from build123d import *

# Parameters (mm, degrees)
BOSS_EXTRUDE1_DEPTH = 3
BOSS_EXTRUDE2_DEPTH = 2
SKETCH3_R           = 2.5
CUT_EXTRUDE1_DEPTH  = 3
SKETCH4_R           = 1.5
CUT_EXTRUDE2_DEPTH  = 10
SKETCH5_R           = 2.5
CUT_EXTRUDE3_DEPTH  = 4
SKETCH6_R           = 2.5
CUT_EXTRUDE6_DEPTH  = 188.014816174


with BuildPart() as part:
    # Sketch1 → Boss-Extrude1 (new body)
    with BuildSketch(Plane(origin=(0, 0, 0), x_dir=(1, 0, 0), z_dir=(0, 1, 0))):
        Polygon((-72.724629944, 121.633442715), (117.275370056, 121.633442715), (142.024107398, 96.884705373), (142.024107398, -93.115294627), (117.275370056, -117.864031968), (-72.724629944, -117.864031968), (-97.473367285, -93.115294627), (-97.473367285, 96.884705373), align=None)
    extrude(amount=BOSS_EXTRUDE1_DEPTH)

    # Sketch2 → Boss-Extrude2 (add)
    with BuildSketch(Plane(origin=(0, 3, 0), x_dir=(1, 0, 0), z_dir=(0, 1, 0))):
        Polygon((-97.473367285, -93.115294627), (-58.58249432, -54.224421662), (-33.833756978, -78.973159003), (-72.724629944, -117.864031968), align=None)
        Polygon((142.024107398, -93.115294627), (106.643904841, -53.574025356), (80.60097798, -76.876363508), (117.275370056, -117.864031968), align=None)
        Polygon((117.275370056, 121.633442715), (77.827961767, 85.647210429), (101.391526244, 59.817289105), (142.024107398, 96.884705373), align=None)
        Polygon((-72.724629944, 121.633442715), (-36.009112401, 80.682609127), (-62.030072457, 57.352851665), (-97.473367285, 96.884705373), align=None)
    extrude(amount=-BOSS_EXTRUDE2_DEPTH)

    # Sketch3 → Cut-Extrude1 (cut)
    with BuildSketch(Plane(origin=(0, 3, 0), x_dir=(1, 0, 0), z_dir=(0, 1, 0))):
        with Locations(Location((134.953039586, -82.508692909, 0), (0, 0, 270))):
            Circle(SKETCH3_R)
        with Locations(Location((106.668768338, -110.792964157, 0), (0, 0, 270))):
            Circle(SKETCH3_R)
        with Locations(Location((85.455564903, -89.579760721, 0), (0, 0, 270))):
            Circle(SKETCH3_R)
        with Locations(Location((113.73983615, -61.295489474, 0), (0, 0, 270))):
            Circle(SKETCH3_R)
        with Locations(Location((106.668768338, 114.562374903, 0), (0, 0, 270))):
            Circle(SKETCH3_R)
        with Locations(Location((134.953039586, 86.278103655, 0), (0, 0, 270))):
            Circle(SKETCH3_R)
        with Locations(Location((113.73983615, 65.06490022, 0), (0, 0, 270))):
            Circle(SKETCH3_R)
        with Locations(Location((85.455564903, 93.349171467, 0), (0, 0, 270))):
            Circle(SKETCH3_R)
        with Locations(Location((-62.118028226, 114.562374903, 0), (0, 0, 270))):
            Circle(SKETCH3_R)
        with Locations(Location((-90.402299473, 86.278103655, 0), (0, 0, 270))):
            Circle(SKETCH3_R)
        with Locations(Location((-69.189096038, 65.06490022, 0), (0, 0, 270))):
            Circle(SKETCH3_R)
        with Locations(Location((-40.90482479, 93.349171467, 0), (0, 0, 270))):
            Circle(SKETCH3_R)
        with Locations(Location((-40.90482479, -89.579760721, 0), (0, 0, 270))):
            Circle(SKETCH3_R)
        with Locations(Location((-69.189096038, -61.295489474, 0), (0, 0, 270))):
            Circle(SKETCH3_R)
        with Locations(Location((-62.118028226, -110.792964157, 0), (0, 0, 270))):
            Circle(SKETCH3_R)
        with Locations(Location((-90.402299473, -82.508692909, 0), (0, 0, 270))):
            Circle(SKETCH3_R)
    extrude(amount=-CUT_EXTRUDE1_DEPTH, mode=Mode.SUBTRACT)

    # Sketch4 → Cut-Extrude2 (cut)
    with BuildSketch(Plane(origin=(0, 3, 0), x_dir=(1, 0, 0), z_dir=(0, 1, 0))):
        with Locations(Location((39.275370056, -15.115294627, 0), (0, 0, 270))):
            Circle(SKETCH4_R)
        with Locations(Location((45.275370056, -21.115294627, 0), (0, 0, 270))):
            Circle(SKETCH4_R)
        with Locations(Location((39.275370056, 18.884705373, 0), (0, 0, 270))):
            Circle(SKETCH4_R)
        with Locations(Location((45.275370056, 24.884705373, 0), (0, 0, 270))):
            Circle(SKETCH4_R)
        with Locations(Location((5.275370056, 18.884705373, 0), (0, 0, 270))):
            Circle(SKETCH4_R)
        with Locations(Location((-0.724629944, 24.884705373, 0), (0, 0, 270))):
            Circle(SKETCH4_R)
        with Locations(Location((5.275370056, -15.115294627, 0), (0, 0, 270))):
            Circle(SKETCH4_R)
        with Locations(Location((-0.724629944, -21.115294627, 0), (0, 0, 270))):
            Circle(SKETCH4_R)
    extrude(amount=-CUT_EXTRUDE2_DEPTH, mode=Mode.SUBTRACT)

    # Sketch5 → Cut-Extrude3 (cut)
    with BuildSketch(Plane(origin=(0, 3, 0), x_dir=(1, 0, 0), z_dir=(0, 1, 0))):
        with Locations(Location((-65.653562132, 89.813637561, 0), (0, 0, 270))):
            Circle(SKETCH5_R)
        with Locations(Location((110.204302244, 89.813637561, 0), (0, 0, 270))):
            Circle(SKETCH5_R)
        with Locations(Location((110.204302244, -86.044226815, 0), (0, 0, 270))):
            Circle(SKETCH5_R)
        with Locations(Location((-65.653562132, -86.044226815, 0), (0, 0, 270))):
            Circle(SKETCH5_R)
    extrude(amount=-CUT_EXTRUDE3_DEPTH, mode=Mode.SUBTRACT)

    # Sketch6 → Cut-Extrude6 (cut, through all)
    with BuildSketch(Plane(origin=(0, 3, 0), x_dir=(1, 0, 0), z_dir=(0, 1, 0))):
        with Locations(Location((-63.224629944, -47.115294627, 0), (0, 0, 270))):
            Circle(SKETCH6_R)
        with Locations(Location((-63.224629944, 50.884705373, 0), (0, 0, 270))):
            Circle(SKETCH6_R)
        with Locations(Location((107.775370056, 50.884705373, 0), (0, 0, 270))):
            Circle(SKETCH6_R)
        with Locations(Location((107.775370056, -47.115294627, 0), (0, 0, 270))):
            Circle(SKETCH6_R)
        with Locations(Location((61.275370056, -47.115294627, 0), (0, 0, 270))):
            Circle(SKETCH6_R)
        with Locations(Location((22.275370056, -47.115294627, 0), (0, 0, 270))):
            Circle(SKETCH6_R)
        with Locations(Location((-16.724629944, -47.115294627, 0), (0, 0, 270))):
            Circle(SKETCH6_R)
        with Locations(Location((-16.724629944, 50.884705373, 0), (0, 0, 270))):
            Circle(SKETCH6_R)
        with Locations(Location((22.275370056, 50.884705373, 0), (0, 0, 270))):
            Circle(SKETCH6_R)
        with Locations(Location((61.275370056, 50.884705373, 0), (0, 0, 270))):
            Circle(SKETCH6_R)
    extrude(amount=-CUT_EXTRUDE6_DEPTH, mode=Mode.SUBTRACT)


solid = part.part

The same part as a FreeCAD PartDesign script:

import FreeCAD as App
import Part
import Sketcher

V = App.Vector

doc = App.newDocument("Part")
params = doc.addObject("Spreadsheet::Sheet", "Params")
for row, (alias, value) in enumerate([
    ("sketch1_width", "190 mm"),
    ("sketch1_length", "35 mm"),
    ("pad1_length", "3 mm"),
    ("sketch2_length", "55 mm"),
    ("sketch2_length2", "35 mm"),
    ("pad2_length", "2 mm"),
    ("sketch3_diameter", "5 mm"),
    ("pocket1_length", "3 mm"),
    ("sketch4_diameter", "3 mm"),
    ("pocket2_length", "10 mm"),
    ("sketch5_diameter", "5 mm"),
    ("pocket3_length", "4 mm"),
    ("sketch6_diameter", "5 mm"),
], start=1):
    params.set(f"A{row}", alias)
    params.set(f"B{row}", "=" + value)
    params.setAlias(f"B{row}", alias)

body = doc.addObject("PartDesign::Body", "Body")

sketch1 = body.newObject("Sketcher::SketchObject", "Sketch")
sketch1.AttachmentSupport = (doc.getObject("XZ_Plane"), [""])
sketch1.MapMode = "FlatFace"
sketch1.addGeometry([
    Part.LineSegment(V(117, -122, 0), V(-73, -122, 0)),
    Part.LineSegment(V(-73, -122, 0), V(-97, -97, 0)),
    Part.LineSegment(V(-97, -97, 0), V(-97, 93, 0)),
    Part.LineSegment(V(-97, 93, 0), V(-73, 118, 0)),
    Part.LineSegment(V(-73, 118, 0), V(117, 118, 0)),
    Part.LineSegment(V(117, 118, 0), V(142, 93, 0)),
    Part.LineSegment(V(142, 93, 0), V(142, -97, 0)),
    Part.LineSegment(V(142, -97, 0), V(117, -122, 0)),
], False)
sketch1.addConstraint([
    Sketcher.Constraint("Coincident", 0, 2, 1, 1),
    Sketcher.Constraint("Coincident", 1, 2, 2, 1),
    Sketcher.Constraint("Coincident", 2, 2, 3, 1),
    Sketcher.Constraint("Coincident", 3, 2, 4, 1),
    Sketcher.Constraint("Coincident", 4, 2, 5, 1),
    Sketcher.Constraint("Coincident", 5, 2, 6, 1),
    Sketcher.Constraint("Coincident", 6, 2, 7, 1),
    Sketcher.Constraint("Coincident", 7, 2, 0, 1),
    Sketcher.Constraint("Horizontal", 0),
    Sketcher.Constraint("Vertical", 2),
    Sketcher.Constraint("Horizontal", 4),
    Sketcher.Constraint("Vertical", 6),
    Sketcher.Constraint("Perpendicular", 1, 3),
    Sketcher.Constraint("Perpendicular", 3, 5),
    Sketcher.Constraint("Perpendicular", 5, 7),
    Sketcher.Constraint("Horizontal", 2, 2, 5, 2),
    Sketcher.Constraint("Horizontal", 1, 2, 6, 2),
    Sketcher.Constraint("Vertical", 0, 2, 3, 2),
    Sketcher.Constraint("Vertical", 4, 2, 7, 2),
    Sketcher.Constraint("Equal", 4, 2),
    Sketcher.Constraint("DistanceX", 0, 2, 0, 1, 190.0),
    Sketcher.Constraint("Distance", 1, 35.0),
    Sketcher.Constraint("DistanceX", 0, 2, -1, 1, 72.72463),
    Sketcher.Constraint("DistanceY", -1, 1, 3, 2, 117.864032),
])
sketch1.setExpression("Constraints[20]", "Params.sketch1_width")
sketch1.setExpression("Constraints[21]", "Params.sketch1_length")
pad1 = body.newObject("PartDesign::Pad", "Pad")
pad1.Profile = sketch1
pad1.setExpression("Length", "Params.pad1_length")
pad1.Reversed = True

sketch2 = body.newObject("Sketcher::SketchObject", "Sketch001")
sketch2.AttachmentSupport = (doc.getObject("XZ_Plane"), [""])
sketch2.MapMode = "FlatFace"
sketch2.AttachmentOffset = App.Placement(V(0, 0, -3), App.Rotation())
sketch2.addGeometry([
    Part.LineSegment(V(-59, 54, 0), V(-97, 93, 0)),
    Part.LineSegment(V(-97, 93, 0), V(-73, 118, 0)),
    Part.LineSegment(V(-73, 118, 0), V(-34, 79, 0)),
    Part.LineSegment(V(-34, 79, 0), V(-59, 54, 0)),
    Part.LineSegment(V(142, 93, 0), V(107, 54, 0)),
    Part.LineSegment(V(107, 54, 0), V(81, 77, 0)),
    Part.LineSegment(V(81, 77, 0), V(117, 118, 0)),
    Part.LineSegment(V(117, 118, 0), V(142, 93, 0)),
    Part.LineSegment(V(117, -122, 0), V(78, -86, 0)),
    Part.LineSegment(V(78, -86, 0), V(101, -60, 0)),
    Part.LineSegment(V(101, -60, 0), V(142, -97, 0)),
    Part.LineSegment(V(142, -97, 0), V(117, -122, 0)),
    Part.LineSegment(V(-36, -81, 0), V(-73, -122, 0)),
    Part.LineSegment(V(-73, -122, 0), V(-97, -97, 0)),
    Part.LineSegment(V(-97, -97, 0), V(-62, -57, 0)),
    Part.LineSegment(V(-62, -57, 0), V(-36, -81, 0)),
], False)
sketch2.addConstraint([
    Sketcher.Constraint("Coincident", 0, 2, 1, 1),
    Sketcher.Constraint("Coincident", 1, 2, 2, 1),
    Sketcher.Constraint("Coincident", 2, 2, 3, 1),
    Sketcher.Constraint("Coincident", 3, 2, 0, 1),
    Sketcher.Constraint("Coincident", 4, 2, 5, 1),
    Sketcher.Constraint("Coincident", 5, 2, 6, 1),
    Sketcher.Constraint("Coincident", 6, 2, 7, 1),
    Sketcher.Constraint("Coincident", 7, 2, 4, 1),
    Sketcher.Constraint("Coincident", 8, 2, 9, 1),
    Sketcher.Constraint("Coincident", 9, 2, 10, 1),
    Sketcher.Constraint("Coincident", 10, 2, 11, 1),
    Sketcher.Constraint("Coincident", 11, 2, 8, 1),
    Sketcher.Constraint("Coincident", 12, 2, 13, 1),
    Sketcher.Constraint("Coincident", 13, 2, 14, 1),
    Sketcher.Constraint("Coincident", 14, 2, 15, 1),
    Sketcher.Constraint("Coincident", 15, 2, 12, 1),
    Sketcher.Constraint("Perpendicular", 0, 1),
    Sketcher.Constraint("Perpendicular", 1, 2),
    Sketcher.Constraint("Perpendicular", 2, 3),
    Sketcher.Constraint("Perpendicular", 4, 5),
    Sketcher.Constraint("Perpendicular", 5, 6),
    Sketcher.Constraint("Perpendicular", 3, 7),
    Sketcher.Constraint("Perpendicular", 8, 9),
    Sketcher.Constraint("Perpendicular", 9, 10),
    Sketcher.Constraint("Perpendicular", 7, 11),
    Sketcher.Constraint("Perpendicular", 11, 13),
    Sketcher.Constraint("Parallel", 12, 14),
    Sketcher.Constraint("Perpendicular", 14, 15),
    Sketcher.Constraint("Horizontal", 1, 2, 6, 2),
    Sketcher.Constraint("Horizontal", 0, 2, 7, 2),
    Sketcher.Constraint("Horizontal", 11, 2, 12, 2),
    Sketcher.Constraint("Horizontal", 10, 2, 13, 2),
    Sketcher.Constraint("Vertical", 7, 2, 10, 2),
    Sketcher.Constraint("Vertical", 6, 2, 11, 2),
    Sketcher.Constraint("Vertical", 1, 2, 12, 2),
    Sketcher.Constraint("Vertical", 0, 2, 13, 2),
    Sketcher.Constraint("Equal", 2, 6),
    Sketcher.Constraint("Equal", 6, 10),
    Sketcher.Constraint("Equal", 10, 12),
    Sketcher.Constraint("Distance", 0, 55.0),
    Sketcher.Constraint("Distance", 1, 35.0),
    Sketcher.Constraint("DistanceX", 1, 2, 6, 2, 190.0),
    Sketcher.Constraint("DistanceY", 10, 2, 7, 2, 190.0),
    Sketcher.Constraint("DistanceX", 3, 2, 4, 2, 165.226399),
    Sketcher.Constraint("DistanceY", 8, 2, 15, 2, 4.964601),
    Sketcher.Constraint("DistanceX", 1, 2, -1, 1, 72.72463),
    Sketcher.Constraint("DistanceY", -1, 1, 1, 2, 117.864032),
    Sketcher.Constraint("DistanceX", -1, 1, 8, 2, 77.827962),
])
sketch2.setExpression("Constraints[39]", "Params.sketch2_length")
sketch2.setExpression("Constraints[40]", "Params.sketch2_length2")
pad2 = body.newObject("PartDesign::Pad", "Pad001")
pad2.Profile = sketch2
pad2.setExpression("Length", "Params.pad2_length")

sketch3 = body.newObject("Sketcher::SketchObject", "Sketch002")
sketch3.AttachmentSupport = (doc.getObject("XZ_Plane"), [""])
sketch3.MapMode = "FlatFace"
sketch3.AttachmentOffset = App.Placement(V(0, 0, -3), App.Rotation())
sketch3.addGeometry([
    Part.Circle(V(135, 82.5, 0), V(0, 0, 1), 2.5),
    Part.Circle(V(106.7, 110.8, 0), V(0, 0, 1), 2.5),
    Part.Circle(V(85.5, 89.6, 0), V(0, 0, 1), 2.5),
    Part.Circle(V(113.7, 61.3, 0), V(0, 0, 1), 2.5),
    Part.Circle(V(106.7, -114.6, 0), V(0, 0, 1), 2.5),
    Part.Circle(V(135, -86.3, 0), V(0, 0, 1), 2.5),
    Part.Circle(V(113.7, -65.1, 0), V(0, 0, 1), 2.5),
    Part.Circle(V(85.5, -93.3, 0), V(0, 0, 1), 2.5),
    Part.Circle(V(-62.1, -114.6, 0), V(0, 0, 1), 2.5),
    Part.Circle(V(-90.4, -86.3, 0), V(0, 0, 1), 2.5),
    Part.Circle(V(-69.2, -65.1, 0), V(0, 0, 1), 2.5),
    Part.Circle(V(-40.9, -93.3, 0), V(0, 0, 1), 2.5),
    Part.Circle(V(-40.9, 89.6, 0), V(0, 0, 1), 2.5),
    Part.Circle(V(-69.2, 61.3, 0), V(0, 0, 1), 2.5),
    Part.Circle(V(-62.1, 110.8, 0), V(0, 0, 1), 2.5),
    Part.Circle(V(-90.4, 82.5, 0), V(0, 0, 1), 2.5),
], False)
sketch3.addConstraint([
    Sketcher.Constraint("Equal", 0, 1),
    Sketcher.Constraint("Equal", 1, 2),
    Sketcher.Constraint("Equal", 2, 3),
    Sketcher.Constraint("Equal", 3, 4),
    Sketcher.Constraint("Equal", 4, 5),
    Sketcher.Constraint("Equal", 5, 6),
    Sketcher.Constraint("Equal", 6, 7),
    Sketcher.Constraint("Equal", 7, 8),
    Sketcher.Constraint("Equal", 8, 9),
    Sketcher.Constraint("Equal", 9, 10),
    Sketcher.Constraint("Equal", 10, 11),
    Sketcher.Constraint("Equal", 11, 12),
    Sketcher.Constraint("Equal", 12, 13),
    Sketcher.Constraint("Equal", 13, 14),
    Sketcher.Constraint("Equal", 14, 15),
    Sketcher.Constraint("Horizontal", 4, 3, 8, 3),
    Sketcher.Constraint("Horizontal", 5, 3, 9, 3),
    Sketcher.Constraint("Horizontal", 6, 3, 10, 3),
    Sketcher.Constraint("Horizontal", 7, 3, 11, 3),
    Sketcher.Constraint("Horizontal", 2, 3, 12, 3),
    Sketcher.Constraint("Horizontal", 3, 3, 13, 3),
    Sketcher.Constraint("Horizontal", 1, 3, 14, 3),
    Sketcher.Constraint("Horizontal", 0, 3, 15, 3),
    Sketcher.Constraint("Vertical", 1, 3, 4, 3),
    Sketcher.Constraint("Vertical", 0, 3, 5, 3),
    Sketcher.Constraint("Vertical", 3, 3, 6, 3),
    Sketcher.Constraint("Vertical", 2, 3, 7, 3),
    Sketcher.Constraint("Vertical", 11, 3, 12, 3),
    Sketcher.Constraint("Vertical", 10, 3, 13, 3),
    Sketcher.Constraint("Vertical", 8, 3, 14, 3),
    Sketcher.Constraint("Vertical", 9, 3, 15, 3),
    Sketcher.Constraint("Diameter", 0, 5.0),
    Sketcher.Constraint("DistanceY", 6, 3, -1, 1, 65.0649),
    Sketcher.Constraint("DistanceX", 9, 3, -1, 1, 90.402299),
    Sketcher.Constraint("DistanceX", -1, 1, 0, 3, 134.95304),
    Sketcher.Constraint("DistanceX", -1, 1, 1, 3, 106.668768),
    Sketcher.Constraint("DistanceY", -1, 1, 2, 3, 89.579761),
    Sketcher.Constraint("DistanceY", -1, 1, 3, 3, 61.295489),
    Sketcher.Constraint("DistanceY", 7, 3, -1, 1, 93.349171),
    Sketcher.Constraint("DistanceX", 8, 3, -1, 1, 62.118028),
    Sketcher.Constraint("DistanceY", 0, 3, 1, 3, 28.284271),
    Sketcher.Constraint("DistanceX", 2, 3, 3, 3, 28.284271),
    Sketcher.Constraint("DistanceY", 4, 3, 1, 3, 225.355339),
    Sketcher.Constraint("DistanceY", 4, 3, 5, 3, 28.284271),
    Sketcher.Constraint("DistanceX", 10, 3, 7, 3, 154.644661),
    Sketcher.Constraint("DistanceX", 10, 3, 11, 3, 28.284271),
    Sketcher.Constraint("DistanceY", -1, 1, 0, 3, 82.508693),
    Sketcher.Constraint("DistanceX", -1, 1, 2, 3, 85.455565),
])
sketch3.setExpression("Constraints[31]", "Params.sketch3_diameter")
pocket1 = body.newObject("PartDesign::Pocket", "Pocket")
pocket1.Profile = sketch3
pocket1.setExpression("Length", "Params.pocket1_length")
pocket1.Reversed = True

sketch4 = body.newObject("Sketcher::SketchObject", "Sketch003")
sketch4.AttachmentSupport = (doc.getObject("XZ_Plane"), [""])
sketch4.MapMode = "FlatFace"
sketch4.AttachmentOffset = App.Placement(V(0, 0, -3), App.Rotation())
sketch4.addGeometry([
    Part.Circle(V(39.3, 15.1, 0), V(0, 0, 1), 1.5),
    Part.Circle(V(45.3, 21.1, 0), V(0, 0, 1), 1.5),
    Part.Circle(V(39.3, -18.9, 0), V(0, 0, 1), 1.5),
    Part.Circle(V(45.3, -24.9, 0), V(0, 0, 1), 1.5),
    Part.Circle(V(5.3, -18.9, 0), V(0, 0, 1), 1.5),
    Part.Circle(V(-0.7, -24.9, 0), V(0, 0, 1), 1.5),
    Part.Circle(V(5.3, 15.1, 0), V(0, 0, 1), 1.5),
    Part.Circle(V(-0.7, 21.1, 0), V(0, 0, 1), 1.5),
], False)
sketch4.addConstraint([
    Sketcher.Constraint("Equal", 0, 1),
    Sketcher.Constraint("Equal", 1, 2),
    Sketcher.Constraint("Equal", 2, 3),
    Sketcher.Constraint("Equal", 3, 4),
    Sketcher.Constraint("Equal", 4, 5),
    Sketcher.Constraint("Equal", 5, 6),
    Sketcher.Constraint("Equal", 6, 7),
    Sketcher.Constraint("Horizontal", 2, 3, 4, 3),
    Sketcher.Constraint("Horizontal", 3, 3, 5, 3),
    Sketcher.Constraint("Horizontal", 0, 3, 6, 3),
    Sketcher.Constraint("Horizontal", 1, 3, 7, 3),
    Sketcher.Constraint("Vertical", 0, 3, 2, 3),
    Sketcher.Constraint("Vertical", 1, 3, 3, 3),
    Sketcher.Constraint("Vertical", 4, 3, 6, 3),
    Sketcher.Constraint("Vertical", 5, 3, 7, 3),
    Sketcher.Constraint("Diameter", 0, 3.0),
    Sketcher.Constraint("DistanceX", 0, 3, 1, 3, 6.0),
    Sketcher.Constraint("DistanceY", 0, 3, 1, 3, 6.0),
    Sketcher.Constraint("DistanceY", 2, 3, 0, 3, 34.0),
    Sketcher.Constraint("DistanceY", 3, 3, 2, 3, 6.0),
    Sketcher.Constraint("DistanceX", 4, 3, 2, 3, 34.0),
    Sketcher.Constraint("DistanceX", 5, 3, 4, 3, 6.0),
    Sketcher.Constraint("DistanceX", -1, 1, 0, 3, 39.27537),
    Sketcher.Constraint("DistanceY", -1, 1, 0, 3, 15.115295),
])
sketch4.setExpression("Constraints[15]", "Params.sketch4_diameter")
pocket2 = body.newObject("PartDesign::Pocket", "Pocket001")
pocket2.Profile = sketch4
pocket2.setExpression("Length", "Params.pocket2_length")
pocket2.Reversed = True

sketch5 = body.newObject("Sketcher::SketchObject", "Sketch004")
sketch5.AttachmentSupport = (doc.getObject("XZ_Plane"), [""])
sketch5.MapMode = "FlatFace"
sketch5.AttachmentOffset = App.Placement(V(0, 0, -3), App.Rotation())
sketch5.addGeometry([
    Part.Circle(V(-65.7, -89.8, 0), V(0, 0, 1), 2.5),
    Part.Circle(V(110.2, -89.8, 0), V(0, 0, 1), 2.5),
    Part.Circle(V(110.2, 86, 0), V(0, 0, 1), 2.5),
    Part.Circle(V(-65.7, 86, 0), V(0, 0, 1), 2.5),
], False)
sketch5.addConstraint([
    Sketcher.Constraint("Equal", 0, 1),
    Sketcher.Constraint("Equal", 1, 2),
    Sketcher.Constraint("Equal", 2, 3),
    Sketcher.Constraint("Horizontal", 0, 3, 1, 3),
    Sketcher.Constraint("Horizontal", 2, 3, 3, 3),
    Sketcher.Constraint("Vertical", 1, 3, 2, 3),
    Sketcher.Constraint("Vertical", 0, 3, 3, 3),
    Sketcher.Constraint("Diameter", 0, 5.0),
    Sketcher.Constraint("DistanceX", 0, 3, -1, 1, 65.653562),
    Sketcher.Constraint("DistanceY", 0, 3, -1, 1, 89.813638),
    Sketcher.Constraint("DistanceX", -1, 1, 1, 3, 110.204302),
    Sketcher.Constraint("DistanceY", -1, 1, 2, 3, 86.044227),
])
sketch5.setExpression("Constraints[7]", "Params.sketch5_diameter")
pocket3 = body.newObject("PartDesign::Pocket", "Pocket002")
pocket3.Profile = sketch5
pocket3.setExpression("Length", "Params.pocket3_length")
pocket3.Reversed = True

sketch6 = body.newObject("Sketcher::SketchObject", "Sketch005")
sketch6.AttachmentSupport = (doc.getObject("XZ_Plane"), [""])
sketch6.MapMode = "FlatFace"
sketch6.AttachmentOffset = App.Placement(V(0, 0, -3), App.Rotation())
sketch6.addGeometry([
    Part.Circle(V(-63.2, 47.1, 0), V(0, 0, 1), 2.5),
    Part.Circle(V(-63.2, -50.9, 0), V(0, 0, 1), 2.5),
    Part.Circle(V(107.8, -50.9, 0), V(0, 0, 1), 2.5),
    Part.Circle(V(107.8, 47.1, 0), V(0, 0, 1), 2.5),
    Part.Circle(V(61.3, 47.1, 0), V(0, 0, 1), 2.5),
    Part.Circle(V(22.3, 47.1, 0), V(0, 0, 1), 2.5),
    Part.Circle(V(-16.7, 47.1, 0), V(0, 0, 1), 2.5),
    Part.Circle(V(-16.7, -50.9, 0), V(0, 0, 1), 2.5),
    Part.Circle(V(22.3, -50.9, 0), V(0, 0, 1), 2.5),
    Part.Circle(V(61.3, -50.9, 0), V(0, 0, 1), 2.5),
], False)
sketch6.addConstraint([
    Sketcher.Constraint("Equal", 0, 1),
    Sketcher.Constraint("Equal", 1, 2),
    Sketcher.Constraint("Equal", 2, 3),
    Sketcher.Constraint("Equal", 3, 4),
    Sketcher.Constraint("Equal", 4, 5),
    Sketcher.Constraint("Equal", 5, 6),
    Sketcher.Constraint("Equal", 6, 7),
    Sketcher.Constraint("Equal", 7, 8),
    Sketcher.Constraint("Equal", 8, 9),
    Sketcher.Constraint("Horizontal", 1, 3, 2, 3),
    Sketcher.Constraint("Horizontal", 0, 3, 3, 3),
    Sketcher.Constraint("Horizontal", 3, 3, 4, 3),
    Sketcher.Constraint("Horizontal", 4, 3, 5, 3),
    Sketcher.Constraint("Horizontal", 5, 3, 6, 3),
    Sketcher.Constraint("Horizontal", 2, 3, 7, 3),
    Sketcher.Constraint("Horizontal", 7, 3, 8, 3),
    Sketcher.Constraint("Horizontal", 8, 3, 9, 3),
    Sketcher.Constraint("Vertical", 0, 3, 1, 3),
    Sketcher.Constraint("Vertical", 2, 3, 3, 3),
    Sketcher.Constraint("Vertical", 6, 3, 7, 3),
    Sketcher.Constraint("Vertical", 5, 3, 8, 3),
    Sketcher.Constraint("Vertical", 4, 3, 9, 3),
    Sketcher.Constraint("Diameter", 0, 5.0),
    Sketcher.Constraint("DistanceY", 1, 3, 0, 3, 98.0),
    Sketcher.Constraint("DistanceX", 1, 3, 2, 3, 171.0),
    Sketcher.Constraint("DistanceX", 5, 3, 4, 3, 39.0),
    Sketcher.Constraint("DistanceX", 6, 3, 5, 3, 39.0),
    Sketcher.Constraint("DistanceX", 4, 3, 3, 3, 46.5),
    Sketcher.Constraint("DistanceX", 0, 3, -1, 1, 63.22463),
    Sketcher.Constraint("DistanceY", -1, 1, 0, 3, 47.115295),
])
sketch6.setExpression("Constraints[22]", "Params.sketch6_diameter")
pocket4 = body.newObject("PartDesign::Pocket", "Pocket003")
pocket4.Profile = sketch6
pocket4.Type = "ThroughAll"
pocket4.Reversed = True

doc.recompute()
